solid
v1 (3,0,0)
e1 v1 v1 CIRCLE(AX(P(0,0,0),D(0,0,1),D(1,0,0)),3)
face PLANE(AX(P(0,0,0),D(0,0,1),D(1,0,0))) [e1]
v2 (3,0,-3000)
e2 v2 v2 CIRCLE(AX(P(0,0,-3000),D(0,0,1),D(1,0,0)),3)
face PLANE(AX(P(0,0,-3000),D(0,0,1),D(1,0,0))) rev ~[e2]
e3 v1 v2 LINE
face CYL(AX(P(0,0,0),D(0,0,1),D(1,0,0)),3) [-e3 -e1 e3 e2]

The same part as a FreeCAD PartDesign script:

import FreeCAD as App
import Part
import Sketcher
Q = App.Units.Quantity

doc = App.newDocument("Part")
body = doc.addObject("PartDesign::Body", "Body")

# Sketch on XY plane
sketch1 = doc.addObject("Sketcher::SketchObject", "Sketch")
body.addObject(sketch1)
sketch1.AttachmentSupport = (doc.XY_Plane, [""])
sketch1.MapMode = "FlatFace"
sketch1.addGeometry(Part.Circle(App.Vector(0, 0, 0), App.Vector(0, 0, 1), 3), False)
sketch1.addConstraint(Sketcher.Constraint("Coincident", 0, 3, -1, 1))
sketch1.addConstraint(Sketcher.Constraint("Diameter", 0, Q("6 mm")))
pad1 = doc.addObject("PartDesign::Pad", "Pad")
body.addObject(pad1)
pad1.Profile = sketch1
pad1.Length = 3000
pad1.Reversed = True

doc.recompute()
